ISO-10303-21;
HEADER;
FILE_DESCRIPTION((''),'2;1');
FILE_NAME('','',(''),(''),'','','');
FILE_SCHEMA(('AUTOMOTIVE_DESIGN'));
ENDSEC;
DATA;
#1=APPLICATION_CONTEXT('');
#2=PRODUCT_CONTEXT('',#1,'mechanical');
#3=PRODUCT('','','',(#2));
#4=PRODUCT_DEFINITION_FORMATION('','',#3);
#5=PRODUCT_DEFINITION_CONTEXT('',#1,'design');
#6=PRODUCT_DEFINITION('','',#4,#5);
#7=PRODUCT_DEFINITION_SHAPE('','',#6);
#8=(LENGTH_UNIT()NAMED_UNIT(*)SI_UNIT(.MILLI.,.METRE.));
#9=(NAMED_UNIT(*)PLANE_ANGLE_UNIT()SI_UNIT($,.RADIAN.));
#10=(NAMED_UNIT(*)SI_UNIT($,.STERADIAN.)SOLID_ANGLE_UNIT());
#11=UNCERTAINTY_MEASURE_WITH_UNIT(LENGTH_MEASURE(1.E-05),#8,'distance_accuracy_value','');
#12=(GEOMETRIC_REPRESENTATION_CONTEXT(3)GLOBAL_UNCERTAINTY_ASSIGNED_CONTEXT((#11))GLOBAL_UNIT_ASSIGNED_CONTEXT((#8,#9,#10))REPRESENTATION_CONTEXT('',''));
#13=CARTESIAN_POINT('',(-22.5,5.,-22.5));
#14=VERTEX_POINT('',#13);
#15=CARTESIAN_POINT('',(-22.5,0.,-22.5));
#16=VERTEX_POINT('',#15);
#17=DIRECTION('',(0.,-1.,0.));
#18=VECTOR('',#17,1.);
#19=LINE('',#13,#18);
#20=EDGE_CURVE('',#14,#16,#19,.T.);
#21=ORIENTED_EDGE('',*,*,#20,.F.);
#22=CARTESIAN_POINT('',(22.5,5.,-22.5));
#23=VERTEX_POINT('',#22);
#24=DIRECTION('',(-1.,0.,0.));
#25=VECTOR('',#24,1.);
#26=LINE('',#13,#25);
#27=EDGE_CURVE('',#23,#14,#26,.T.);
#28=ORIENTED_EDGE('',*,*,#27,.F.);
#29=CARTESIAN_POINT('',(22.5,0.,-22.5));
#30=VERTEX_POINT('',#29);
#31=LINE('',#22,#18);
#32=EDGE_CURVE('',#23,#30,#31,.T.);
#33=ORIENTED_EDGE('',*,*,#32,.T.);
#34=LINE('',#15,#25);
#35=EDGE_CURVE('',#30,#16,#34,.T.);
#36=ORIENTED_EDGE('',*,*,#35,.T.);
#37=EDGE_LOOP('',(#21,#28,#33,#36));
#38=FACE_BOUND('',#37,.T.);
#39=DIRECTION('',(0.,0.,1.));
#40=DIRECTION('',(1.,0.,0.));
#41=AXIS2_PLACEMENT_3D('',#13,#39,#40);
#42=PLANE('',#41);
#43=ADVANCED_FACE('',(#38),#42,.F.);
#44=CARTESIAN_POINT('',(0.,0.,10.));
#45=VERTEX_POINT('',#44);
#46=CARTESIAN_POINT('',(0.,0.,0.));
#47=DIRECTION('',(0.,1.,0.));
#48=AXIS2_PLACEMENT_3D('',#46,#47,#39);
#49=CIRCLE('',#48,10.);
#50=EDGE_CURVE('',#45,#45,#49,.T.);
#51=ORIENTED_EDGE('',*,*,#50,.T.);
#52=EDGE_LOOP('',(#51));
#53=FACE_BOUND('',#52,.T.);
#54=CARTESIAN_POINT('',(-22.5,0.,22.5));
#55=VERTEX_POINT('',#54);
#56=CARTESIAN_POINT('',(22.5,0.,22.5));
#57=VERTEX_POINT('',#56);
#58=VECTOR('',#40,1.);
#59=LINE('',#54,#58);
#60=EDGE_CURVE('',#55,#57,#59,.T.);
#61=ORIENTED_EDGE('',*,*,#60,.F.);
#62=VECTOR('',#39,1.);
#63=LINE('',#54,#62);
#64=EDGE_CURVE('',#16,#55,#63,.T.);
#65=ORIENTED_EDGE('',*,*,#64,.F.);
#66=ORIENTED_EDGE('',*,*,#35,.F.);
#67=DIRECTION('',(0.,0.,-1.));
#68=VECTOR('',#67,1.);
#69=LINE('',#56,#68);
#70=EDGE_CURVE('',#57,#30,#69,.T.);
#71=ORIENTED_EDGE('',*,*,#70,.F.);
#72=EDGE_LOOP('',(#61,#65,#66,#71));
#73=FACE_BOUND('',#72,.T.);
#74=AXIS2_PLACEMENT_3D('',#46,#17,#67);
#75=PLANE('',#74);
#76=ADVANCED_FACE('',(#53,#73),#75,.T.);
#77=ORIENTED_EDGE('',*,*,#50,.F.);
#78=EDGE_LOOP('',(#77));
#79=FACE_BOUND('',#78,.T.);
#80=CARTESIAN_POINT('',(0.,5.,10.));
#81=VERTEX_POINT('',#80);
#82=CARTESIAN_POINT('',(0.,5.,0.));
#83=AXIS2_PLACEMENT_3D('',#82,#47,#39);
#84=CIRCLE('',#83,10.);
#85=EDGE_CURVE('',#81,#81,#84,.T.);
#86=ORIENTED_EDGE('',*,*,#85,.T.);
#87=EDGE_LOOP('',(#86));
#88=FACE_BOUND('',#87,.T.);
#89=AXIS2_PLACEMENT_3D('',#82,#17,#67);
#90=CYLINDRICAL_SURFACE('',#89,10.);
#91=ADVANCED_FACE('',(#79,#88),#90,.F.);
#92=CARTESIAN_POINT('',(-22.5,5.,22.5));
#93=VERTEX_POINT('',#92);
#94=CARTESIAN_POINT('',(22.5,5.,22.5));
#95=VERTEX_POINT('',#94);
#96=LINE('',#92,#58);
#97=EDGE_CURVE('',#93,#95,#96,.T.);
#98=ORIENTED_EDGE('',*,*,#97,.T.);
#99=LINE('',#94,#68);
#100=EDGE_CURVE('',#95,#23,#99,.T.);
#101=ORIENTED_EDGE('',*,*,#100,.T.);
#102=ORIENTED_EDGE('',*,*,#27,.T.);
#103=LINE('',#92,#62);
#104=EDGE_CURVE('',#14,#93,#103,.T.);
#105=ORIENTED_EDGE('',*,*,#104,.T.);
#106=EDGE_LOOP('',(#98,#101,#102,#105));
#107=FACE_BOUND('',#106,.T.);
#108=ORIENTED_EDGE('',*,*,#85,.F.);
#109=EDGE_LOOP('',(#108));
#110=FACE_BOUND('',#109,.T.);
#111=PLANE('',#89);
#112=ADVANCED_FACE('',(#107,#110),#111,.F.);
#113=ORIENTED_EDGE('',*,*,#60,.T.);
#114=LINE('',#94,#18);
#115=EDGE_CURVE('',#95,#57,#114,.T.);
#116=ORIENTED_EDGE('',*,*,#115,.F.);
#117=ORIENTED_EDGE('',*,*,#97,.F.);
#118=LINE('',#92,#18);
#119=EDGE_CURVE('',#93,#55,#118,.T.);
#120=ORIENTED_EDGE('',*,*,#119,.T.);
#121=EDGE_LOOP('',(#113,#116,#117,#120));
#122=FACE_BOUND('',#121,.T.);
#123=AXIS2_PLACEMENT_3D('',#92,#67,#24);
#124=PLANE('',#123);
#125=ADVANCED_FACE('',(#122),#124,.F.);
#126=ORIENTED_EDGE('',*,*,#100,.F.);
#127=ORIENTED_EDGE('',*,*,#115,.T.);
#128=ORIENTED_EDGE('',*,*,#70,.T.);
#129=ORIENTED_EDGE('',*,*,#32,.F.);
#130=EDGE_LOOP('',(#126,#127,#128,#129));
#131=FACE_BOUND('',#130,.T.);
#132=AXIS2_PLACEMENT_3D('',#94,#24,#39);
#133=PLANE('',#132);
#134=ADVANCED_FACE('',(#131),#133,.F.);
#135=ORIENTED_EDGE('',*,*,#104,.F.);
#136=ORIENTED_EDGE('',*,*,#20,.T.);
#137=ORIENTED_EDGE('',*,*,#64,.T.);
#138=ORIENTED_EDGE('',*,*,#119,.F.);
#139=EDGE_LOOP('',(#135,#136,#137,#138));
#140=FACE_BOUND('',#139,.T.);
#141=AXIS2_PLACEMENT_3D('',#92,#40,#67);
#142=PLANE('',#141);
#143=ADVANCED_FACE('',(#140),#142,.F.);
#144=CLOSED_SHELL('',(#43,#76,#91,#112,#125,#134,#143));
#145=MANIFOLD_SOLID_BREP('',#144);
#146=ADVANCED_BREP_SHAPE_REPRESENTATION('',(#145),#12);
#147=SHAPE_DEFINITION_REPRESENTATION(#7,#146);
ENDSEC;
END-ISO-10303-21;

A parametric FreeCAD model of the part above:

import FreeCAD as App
import Part
import Sketcher
from FreeCAD import Vector


def add_polygon(sketch, points):
    """Adds a closed chain of lines whose ends are joined by coincident constraints."""
    first, n = sketch.GeometryCount, len(points)
    for a, b in zip(points, points[1:] + points[:1]):
        sketch.addGeometry(Part.LineSegment(App.Vector(*a, 0), App.Vector(*b, 0)), False)
    for i in range(n):
        sketch.addConstraint(Sketcher.Constraint("Coincident", first + i, 2, first + (i + 1) % n, 1))

doc = App.newDocument("Part")
body = doc.addObject("PartDesign::Body", "Body")

# Sketch on XZ plane
sketch1 = body.newObject("Sketcher::SketchObject", "Sketch")
sketch1.AttachmentSupport = (doc.getObject("XZ_Plane"), [""])
sketch1.MapMode = "FlatFace"
add_polygon(sketch1, [(-22, -22), (-22, 22), (22, 22), (22, -22)])  # lines 0-3
sketch1.addGeometry(Part.Circle(Vector(0, 0, 0), Vector(0, 0, 1), 10), False)  # 4
sketch1.addConstraint(Sketcher.Constraint("Vertical", 0))
sketch1.addConstraint(Sketcher.Constraint("Horizontal", 1))
sketch1.addConstraint(Sketcher.Constraint("Vertical", 2))
sketch1.addConstraint(Sketcher.Constraint("Horizontal", 3))
sketch1.addConstraint(Sketcher.Constraint("Coincident", 4, 3, -1, 1))
sketch1.addConstraint(Sketcher.Constraint("Symmetric", 0, 2, 2, 2, -1, 1))
sketch1.addConstraint(Sketcher.Constraint("Equal", 3, 0))
sketch1.addConstraint(Sketcher.Constraint("Diameter", 4, 20.0))
sketch1.addConstraint(Sketcher.Constraint("DistanceX", 1, 1, 1, 2, 45.0))
pad1 = body.newObject("PartDesign::Pad", "Pad")
pad1.Profile = sketch1
pad1.Length = 5
pad1.Reversed = True

doc.recompute()
